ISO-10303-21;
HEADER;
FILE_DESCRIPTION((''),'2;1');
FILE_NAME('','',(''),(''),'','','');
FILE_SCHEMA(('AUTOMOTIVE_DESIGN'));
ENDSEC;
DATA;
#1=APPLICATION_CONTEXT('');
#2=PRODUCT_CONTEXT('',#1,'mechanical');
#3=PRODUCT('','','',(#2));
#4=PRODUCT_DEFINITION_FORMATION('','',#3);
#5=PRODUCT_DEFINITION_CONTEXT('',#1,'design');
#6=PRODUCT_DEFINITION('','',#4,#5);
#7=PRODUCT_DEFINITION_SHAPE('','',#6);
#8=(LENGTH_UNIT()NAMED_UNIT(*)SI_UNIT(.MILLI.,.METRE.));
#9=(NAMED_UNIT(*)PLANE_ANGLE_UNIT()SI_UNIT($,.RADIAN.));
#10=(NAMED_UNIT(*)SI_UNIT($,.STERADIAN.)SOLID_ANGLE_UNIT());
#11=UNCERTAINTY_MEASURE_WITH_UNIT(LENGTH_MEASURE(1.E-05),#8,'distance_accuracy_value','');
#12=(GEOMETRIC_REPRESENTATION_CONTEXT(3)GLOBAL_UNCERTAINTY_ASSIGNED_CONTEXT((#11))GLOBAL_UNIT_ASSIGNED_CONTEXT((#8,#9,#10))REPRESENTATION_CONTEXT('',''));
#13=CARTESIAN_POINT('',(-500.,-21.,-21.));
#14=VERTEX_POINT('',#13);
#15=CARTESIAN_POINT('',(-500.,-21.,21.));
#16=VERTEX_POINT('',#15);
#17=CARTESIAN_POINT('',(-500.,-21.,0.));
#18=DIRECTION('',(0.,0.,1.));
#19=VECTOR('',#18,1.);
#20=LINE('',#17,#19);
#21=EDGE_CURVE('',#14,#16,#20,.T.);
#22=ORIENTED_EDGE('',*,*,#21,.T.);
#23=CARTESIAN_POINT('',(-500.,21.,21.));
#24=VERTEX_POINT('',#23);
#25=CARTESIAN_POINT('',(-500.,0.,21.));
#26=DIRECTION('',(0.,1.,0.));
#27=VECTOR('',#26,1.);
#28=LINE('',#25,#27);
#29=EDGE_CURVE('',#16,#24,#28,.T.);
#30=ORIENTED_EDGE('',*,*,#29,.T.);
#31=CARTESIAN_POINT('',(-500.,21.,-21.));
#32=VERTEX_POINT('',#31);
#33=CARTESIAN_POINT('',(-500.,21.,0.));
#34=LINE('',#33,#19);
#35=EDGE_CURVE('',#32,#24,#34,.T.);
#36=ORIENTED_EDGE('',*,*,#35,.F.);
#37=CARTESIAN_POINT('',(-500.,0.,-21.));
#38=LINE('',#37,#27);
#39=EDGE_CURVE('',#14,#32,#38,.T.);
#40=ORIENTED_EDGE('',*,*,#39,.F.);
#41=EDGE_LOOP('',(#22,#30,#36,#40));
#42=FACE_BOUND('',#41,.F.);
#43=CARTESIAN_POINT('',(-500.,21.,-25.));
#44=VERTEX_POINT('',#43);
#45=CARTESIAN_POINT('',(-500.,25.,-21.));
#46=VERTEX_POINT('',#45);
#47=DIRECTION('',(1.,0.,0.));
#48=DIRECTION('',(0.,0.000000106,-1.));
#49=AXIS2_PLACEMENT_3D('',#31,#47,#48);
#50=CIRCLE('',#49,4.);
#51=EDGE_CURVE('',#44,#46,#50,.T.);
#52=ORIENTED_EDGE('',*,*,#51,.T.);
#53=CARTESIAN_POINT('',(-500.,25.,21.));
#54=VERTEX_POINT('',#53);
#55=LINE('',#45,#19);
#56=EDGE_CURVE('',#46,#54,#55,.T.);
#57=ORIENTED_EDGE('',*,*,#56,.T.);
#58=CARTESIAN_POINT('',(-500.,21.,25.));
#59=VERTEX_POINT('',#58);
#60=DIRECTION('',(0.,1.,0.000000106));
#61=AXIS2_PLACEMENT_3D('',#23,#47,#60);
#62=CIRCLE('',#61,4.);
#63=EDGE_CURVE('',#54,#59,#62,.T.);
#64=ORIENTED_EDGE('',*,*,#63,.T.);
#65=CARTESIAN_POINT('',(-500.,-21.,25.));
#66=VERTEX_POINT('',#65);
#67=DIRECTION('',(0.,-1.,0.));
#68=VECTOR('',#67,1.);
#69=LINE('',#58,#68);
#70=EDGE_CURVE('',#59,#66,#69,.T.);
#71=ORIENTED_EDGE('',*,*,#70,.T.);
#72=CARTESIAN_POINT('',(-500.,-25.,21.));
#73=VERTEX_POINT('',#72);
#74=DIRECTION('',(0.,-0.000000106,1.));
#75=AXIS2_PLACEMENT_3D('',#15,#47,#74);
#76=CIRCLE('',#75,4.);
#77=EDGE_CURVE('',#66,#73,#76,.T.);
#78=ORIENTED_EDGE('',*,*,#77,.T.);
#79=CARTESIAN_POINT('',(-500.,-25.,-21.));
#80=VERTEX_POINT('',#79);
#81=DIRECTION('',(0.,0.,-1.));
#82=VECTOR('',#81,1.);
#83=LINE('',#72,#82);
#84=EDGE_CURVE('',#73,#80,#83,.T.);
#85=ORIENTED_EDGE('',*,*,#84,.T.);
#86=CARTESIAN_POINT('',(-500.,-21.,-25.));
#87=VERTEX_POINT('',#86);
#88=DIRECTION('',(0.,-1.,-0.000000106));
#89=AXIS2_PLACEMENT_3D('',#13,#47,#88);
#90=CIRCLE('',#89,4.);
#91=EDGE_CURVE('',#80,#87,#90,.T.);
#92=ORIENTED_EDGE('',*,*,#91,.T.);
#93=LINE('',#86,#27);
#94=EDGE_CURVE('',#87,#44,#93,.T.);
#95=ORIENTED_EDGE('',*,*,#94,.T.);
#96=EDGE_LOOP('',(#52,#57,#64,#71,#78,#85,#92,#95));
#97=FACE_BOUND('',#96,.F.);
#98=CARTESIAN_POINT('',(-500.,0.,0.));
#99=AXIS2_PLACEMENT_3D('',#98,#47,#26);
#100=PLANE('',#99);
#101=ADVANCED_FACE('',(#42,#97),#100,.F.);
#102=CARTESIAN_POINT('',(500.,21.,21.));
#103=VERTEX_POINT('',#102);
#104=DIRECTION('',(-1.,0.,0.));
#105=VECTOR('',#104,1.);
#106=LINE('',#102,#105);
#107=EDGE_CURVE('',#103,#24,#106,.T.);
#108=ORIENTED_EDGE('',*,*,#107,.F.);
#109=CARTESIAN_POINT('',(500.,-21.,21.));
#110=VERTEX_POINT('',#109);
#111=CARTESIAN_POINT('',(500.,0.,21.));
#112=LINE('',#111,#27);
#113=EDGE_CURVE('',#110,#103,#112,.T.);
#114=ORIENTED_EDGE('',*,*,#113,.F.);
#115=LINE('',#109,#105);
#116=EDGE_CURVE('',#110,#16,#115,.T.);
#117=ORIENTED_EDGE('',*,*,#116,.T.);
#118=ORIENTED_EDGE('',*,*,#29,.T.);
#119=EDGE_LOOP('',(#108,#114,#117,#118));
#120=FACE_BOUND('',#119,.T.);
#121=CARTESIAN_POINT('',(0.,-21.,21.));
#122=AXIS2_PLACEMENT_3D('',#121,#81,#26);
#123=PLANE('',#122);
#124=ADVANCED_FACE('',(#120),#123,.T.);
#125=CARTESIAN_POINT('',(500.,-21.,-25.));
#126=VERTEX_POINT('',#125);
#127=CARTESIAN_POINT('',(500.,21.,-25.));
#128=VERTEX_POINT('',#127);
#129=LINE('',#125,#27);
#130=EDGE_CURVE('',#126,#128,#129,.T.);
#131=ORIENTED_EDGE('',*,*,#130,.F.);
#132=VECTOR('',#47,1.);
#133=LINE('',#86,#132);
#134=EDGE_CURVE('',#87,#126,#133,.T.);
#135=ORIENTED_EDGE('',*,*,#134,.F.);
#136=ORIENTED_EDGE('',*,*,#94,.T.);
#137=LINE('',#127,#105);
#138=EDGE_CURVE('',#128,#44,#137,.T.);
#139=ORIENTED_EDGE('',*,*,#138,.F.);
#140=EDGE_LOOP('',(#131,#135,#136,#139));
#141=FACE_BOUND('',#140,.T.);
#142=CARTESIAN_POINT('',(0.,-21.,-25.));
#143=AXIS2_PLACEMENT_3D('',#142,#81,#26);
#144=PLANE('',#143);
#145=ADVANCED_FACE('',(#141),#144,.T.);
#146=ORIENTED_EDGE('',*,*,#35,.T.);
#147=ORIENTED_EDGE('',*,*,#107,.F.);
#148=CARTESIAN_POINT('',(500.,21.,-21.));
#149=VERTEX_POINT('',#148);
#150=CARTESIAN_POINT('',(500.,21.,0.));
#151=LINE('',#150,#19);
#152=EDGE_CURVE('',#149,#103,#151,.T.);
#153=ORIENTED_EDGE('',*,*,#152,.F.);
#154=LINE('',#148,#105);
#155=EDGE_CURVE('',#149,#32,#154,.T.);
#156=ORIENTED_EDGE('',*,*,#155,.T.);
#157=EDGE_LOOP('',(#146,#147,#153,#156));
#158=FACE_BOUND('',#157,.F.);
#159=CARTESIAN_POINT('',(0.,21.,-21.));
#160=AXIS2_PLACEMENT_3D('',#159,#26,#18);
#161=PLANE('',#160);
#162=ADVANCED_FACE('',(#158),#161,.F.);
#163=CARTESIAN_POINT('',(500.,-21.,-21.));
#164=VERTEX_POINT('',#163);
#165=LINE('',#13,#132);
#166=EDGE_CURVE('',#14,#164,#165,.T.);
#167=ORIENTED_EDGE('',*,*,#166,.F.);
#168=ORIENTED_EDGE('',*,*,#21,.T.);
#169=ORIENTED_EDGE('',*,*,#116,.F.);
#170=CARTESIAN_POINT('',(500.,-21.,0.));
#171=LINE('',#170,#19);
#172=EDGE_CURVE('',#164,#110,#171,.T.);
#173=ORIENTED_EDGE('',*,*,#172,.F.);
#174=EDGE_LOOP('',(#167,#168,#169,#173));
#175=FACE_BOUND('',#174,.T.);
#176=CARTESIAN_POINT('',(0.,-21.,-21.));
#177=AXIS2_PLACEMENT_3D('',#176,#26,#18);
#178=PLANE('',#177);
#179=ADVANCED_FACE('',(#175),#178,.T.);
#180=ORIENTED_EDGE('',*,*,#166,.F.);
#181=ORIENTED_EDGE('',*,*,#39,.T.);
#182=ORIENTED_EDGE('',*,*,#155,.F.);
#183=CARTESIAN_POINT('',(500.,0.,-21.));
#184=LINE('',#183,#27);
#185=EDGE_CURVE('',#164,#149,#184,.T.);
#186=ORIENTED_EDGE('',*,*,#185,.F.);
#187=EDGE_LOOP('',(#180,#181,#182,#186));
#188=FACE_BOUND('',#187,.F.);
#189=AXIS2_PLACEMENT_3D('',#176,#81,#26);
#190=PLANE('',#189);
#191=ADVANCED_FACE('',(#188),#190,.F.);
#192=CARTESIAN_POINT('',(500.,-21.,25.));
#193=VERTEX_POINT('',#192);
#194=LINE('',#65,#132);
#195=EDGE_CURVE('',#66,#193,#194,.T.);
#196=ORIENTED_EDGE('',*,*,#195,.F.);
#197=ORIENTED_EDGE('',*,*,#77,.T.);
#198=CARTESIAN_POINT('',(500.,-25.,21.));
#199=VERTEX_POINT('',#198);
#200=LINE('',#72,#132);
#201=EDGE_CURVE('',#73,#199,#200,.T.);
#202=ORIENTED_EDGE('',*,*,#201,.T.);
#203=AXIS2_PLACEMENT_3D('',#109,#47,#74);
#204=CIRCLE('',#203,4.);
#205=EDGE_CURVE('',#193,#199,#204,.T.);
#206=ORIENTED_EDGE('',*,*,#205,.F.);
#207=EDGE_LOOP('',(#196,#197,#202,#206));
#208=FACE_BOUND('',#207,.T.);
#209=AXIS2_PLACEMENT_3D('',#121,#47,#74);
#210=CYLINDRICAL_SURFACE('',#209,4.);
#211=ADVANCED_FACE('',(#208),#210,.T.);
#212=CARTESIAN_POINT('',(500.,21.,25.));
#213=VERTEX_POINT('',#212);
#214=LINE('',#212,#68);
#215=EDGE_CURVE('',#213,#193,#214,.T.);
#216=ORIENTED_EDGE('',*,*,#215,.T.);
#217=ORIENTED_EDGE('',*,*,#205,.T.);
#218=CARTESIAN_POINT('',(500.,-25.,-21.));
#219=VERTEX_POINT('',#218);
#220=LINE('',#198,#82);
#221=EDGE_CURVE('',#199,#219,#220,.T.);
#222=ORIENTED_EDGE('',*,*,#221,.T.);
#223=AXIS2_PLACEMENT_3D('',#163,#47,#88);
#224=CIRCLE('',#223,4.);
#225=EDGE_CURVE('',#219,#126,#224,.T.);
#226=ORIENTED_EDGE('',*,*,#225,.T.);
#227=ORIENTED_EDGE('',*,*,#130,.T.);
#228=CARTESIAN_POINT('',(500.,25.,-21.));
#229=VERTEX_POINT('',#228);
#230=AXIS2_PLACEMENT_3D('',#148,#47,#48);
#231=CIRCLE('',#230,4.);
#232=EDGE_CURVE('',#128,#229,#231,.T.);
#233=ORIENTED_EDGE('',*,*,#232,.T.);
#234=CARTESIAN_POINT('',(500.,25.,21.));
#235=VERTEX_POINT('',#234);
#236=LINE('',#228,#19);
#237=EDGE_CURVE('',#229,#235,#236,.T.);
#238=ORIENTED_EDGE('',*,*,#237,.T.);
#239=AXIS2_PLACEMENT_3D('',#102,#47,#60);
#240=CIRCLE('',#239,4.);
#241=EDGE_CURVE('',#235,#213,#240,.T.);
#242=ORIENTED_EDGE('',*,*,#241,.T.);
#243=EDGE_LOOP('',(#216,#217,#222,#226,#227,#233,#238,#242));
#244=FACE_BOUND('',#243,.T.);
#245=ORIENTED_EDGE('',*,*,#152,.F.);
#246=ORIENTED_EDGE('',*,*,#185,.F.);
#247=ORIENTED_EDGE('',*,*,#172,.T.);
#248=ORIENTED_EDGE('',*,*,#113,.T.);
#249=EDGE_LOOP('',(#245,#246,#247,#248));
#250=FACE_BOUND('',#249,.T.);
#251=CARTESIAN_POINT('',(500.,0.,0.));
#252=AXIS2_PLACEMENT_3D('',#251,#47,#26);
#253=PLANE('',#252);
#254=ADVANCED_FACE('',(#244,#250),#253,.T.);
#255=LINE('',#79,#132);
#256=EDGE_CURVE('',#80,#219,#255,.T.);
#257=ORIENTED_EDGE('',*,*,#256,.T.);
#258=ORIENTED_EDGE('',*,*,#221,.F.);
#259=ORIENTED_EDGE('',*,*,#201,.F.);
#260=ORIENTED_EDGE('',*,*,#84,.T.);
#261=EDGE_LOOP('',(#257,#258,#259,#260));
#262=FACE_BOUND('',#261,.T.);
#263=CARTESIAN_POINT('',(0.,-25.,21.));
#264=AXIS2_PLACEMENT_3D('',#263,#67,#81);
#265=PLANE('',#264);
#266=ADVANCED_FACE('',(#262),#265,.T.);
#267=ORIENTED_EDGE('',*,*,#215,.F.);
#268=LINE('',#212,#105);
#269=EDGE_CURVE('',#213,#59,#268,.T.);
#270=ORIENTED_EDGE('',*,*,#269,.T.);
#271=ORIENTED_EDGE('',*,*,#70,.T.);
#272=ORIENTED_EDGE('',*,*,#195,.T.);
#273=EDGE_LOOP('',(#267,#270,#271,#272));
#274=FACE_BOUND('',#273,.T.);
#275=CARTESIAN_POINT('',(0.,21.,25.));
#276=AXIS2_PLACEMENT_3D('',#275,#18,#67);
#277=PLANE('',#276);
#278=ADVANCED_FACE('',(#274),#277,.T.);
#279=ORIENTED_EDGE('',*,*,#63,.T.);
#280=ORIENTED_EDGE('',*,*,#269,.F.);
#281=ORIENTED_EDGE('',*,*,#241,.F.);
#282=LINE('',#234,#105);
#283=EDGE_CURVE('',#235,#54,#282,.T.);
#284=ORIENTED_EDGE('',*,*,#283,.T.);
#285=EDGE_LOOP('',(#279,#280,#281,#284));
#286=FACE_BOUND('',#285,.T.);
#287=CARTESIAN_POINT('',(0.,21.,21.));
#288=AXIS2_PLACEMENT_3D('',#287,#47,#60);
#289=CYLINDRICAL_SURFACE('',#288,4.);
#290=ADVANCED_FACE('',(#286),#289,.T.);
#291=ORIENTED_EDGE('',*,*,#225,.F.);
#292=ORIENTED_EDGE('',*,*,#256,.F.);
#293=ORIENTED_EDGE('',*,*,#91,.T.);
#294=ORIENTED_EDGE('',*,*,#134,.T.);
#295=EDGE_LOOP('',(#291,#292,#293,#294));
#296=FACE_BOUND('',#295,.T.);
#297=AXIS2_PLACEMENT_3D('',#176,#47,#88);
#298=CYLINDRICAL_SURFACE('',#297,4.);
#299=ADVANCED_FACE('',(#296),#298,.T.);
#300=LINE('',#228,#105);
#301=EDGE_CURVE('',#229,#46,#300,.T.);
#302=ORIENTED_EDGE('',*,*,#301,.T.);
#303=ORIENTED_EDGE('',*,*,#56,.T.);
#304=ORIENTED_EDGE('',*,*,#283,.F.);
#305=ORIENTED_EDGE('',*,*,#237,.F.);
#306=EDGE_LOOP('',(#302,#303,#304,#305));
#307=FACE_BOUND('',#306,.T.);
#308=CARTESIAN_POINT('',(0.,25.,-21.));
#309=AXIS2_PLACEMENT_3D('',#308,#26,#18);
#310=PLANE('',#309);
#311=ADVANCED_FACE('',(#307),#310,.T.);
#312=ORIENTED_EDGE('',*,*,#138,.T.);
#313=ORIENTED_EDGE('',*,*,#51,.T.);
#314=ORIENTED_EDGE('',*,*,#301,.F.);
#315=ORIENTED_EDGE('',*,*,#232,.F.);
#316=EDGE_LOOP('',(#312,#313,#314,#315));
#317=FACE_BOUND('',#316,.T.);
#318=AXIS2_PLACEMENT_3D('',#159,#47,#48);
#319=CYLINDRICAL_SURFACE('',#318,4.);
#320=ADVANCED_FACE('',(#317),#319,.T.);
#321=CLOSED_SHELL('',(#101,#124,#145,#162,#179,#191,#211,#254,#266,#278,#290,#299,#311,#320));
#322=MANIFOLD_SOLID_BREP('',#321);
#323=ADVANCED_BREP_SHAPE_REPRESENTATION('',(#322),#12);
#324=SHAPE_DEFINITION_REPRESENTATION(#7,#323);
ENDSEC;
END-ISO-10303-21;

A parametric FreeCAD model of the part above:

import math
import FreeCAD as App
import Part
import Sketcher
from FreeCAD import Vector


def add_polygon(sketch, points):
    """Adds a closed chain of lines whose ends are joined by coincident constraints."""
    first, n = sketch.GeometryCount, len(points)
    for a, b in zip(points, points[1:] + points[:1]):
        sketch.addGeometry(Part.LineSegment(App.Vector(*a, 0), App.Vector(*b, 0)), False)
    for i in range(n):
        sketch.addConstraint(Sketcher.Constraint("Coincident", first + i, 2, first + (i + 1) % n, 1))

doc = App.newDocument("Part")
body = doc.addObject("PartDesign::Body", "Body")

# Sketch on YZ plane
sketch1 = body.newObject("Sketcher::SketchObject", "Sketch")
sketch1.AttachmentSupport = (doc.getObject("YZ_Plane"), [""])
sketch1.MapMode = "FlatFace"
sketch1.addGeometry(Part.LineSegment(Vector(21, 25, 0), Vector(-21, 25, 0)), False)  # 0
sketch1.addGeometry(Part.ArcOfCircle(Part.Circle(Vector(-21, 21, 0), Vector(0, 0, 1), 4), math.radians(90.000006), math.radians(179.999994)), False)  # 1
sketch1.addGeometry(Part.LineSegment(Vector(-25, 21, 0), Vector(-25, -21, 0)), False)  # 2
sketch1.addGeometry(Part.ArcOfCircle(Part.Circle(Vector(-21, -21, 0), Vector(0, 0, 1), 4), math.radians(-179.999994), math.radians(-90.000006)), False)  # 3
sketch1.addGeometry(Part.LineSegment(Vector(-21, -25, 0), Vector(21, -25, 0)), False)  # 4
sketch1.addGeometry(Part.ArcOfCircle(Part.Circle(Vector(21, -21, 0), Vector(0, 0, 1), 4), math.radians(-89.999994), math.radians(-0.000006)), False)  # 5
sketch1.addGeometry(Part.LineSegment(Vector(25, -21, 0), Vector(25, 21, 0)), False)  # 6
sketch1.addGeometry(Part.ArcOfCircle(Part.Circle(Vector(21, 21, 0), Vector(0, 0, 1), 4), math.radians(0.000006), math.radians(89.999994)), False)  # 7
add_polygon(sketch1, [(21, -21), (-21, -21), (-21, 21), (21, 21)])  # lines 8-11
sketch1.addConstraint(Sketcher.Constraint("Tangent", 0, 2, 1, 1))
sketch1.addConstraint(Sketcher.Constraint("Tangent", 1, 2, 2, 1))
sketch1.addConstraint(Sketcher.Constraint("Tangent", 2, 2, 3, 1))
sketch1.addConstraint(Sketcher.Constraint("Tangent", 3, 2, 4, 1))
sketch1.addConstraint(Sketcher.Constraint("Tangent", 4, 2, 5, 1))
sketch1.addConstraint(Sketcher.Constraint("Tangent", 5, 2, 6, 1))
sketch1.addConstraint(Sketcher.Constraint("Tangent", 6, 2, 7, 1))
sketch1.addConstraint(Sketcher.Constraint("Tangent", 7, 2, 0, 1))
sketch1.addConstraint(Sketcher.Constraint("Horizontal", 0))
sketch1.addConstraint(Sketcher.Constraint("Vertical", 2))
sketch1.addConstraint(Sketcher.Constraint("Horizontal", 4))
sketch1.addConstraint(Sketcher.Constraint("Vertical", 6))
sketch1.addConstraint(Sketcher.Constraint("Horizontal", 8))
sketch1.addConstraint(Sketcher.Constraint("Vertical", 9))
sketch1.addConstraint(Sketcher.Constraint("Horizontal", 10))
sketch1.addConstraint(Sketcher.Constraint("Vertical", 11))
sketch1.addConstraint(Sketcher.Constraint("Coincident", 8, 2, 3, 3))
sketch1.addConstraint(Sketcher.Constraint("Coincident", 9, 2, 1, 3))
sketch1.addConstraint(Sketcher.Constraint("Coincident", 10, 2, 7, 3))
sketch1.addConstraint(Sketcher.Constraint("Equal", 3, 5))
sketch1.addConstraint(Sketcher.Constraint("Symmetric", 1, 3, 5, 3, -1, 1))
sketch1.addConstraint(Sketcher.Constraint("Equal", 10, 2))
sketch1.addConstraint(Sketcher.Constraint("Radius", 1, 4.0))
sketch1.addConstraint(Sketcher.Constraint("DistanceX", 0, 2, 0, 1, 42.0))
pad1 = body.newObject("PartDesign::Pad", "Pad")
pad1.Profile = sketch1
pad1.Length = 1000
pad1.Midplane = True

doc.recompute()
